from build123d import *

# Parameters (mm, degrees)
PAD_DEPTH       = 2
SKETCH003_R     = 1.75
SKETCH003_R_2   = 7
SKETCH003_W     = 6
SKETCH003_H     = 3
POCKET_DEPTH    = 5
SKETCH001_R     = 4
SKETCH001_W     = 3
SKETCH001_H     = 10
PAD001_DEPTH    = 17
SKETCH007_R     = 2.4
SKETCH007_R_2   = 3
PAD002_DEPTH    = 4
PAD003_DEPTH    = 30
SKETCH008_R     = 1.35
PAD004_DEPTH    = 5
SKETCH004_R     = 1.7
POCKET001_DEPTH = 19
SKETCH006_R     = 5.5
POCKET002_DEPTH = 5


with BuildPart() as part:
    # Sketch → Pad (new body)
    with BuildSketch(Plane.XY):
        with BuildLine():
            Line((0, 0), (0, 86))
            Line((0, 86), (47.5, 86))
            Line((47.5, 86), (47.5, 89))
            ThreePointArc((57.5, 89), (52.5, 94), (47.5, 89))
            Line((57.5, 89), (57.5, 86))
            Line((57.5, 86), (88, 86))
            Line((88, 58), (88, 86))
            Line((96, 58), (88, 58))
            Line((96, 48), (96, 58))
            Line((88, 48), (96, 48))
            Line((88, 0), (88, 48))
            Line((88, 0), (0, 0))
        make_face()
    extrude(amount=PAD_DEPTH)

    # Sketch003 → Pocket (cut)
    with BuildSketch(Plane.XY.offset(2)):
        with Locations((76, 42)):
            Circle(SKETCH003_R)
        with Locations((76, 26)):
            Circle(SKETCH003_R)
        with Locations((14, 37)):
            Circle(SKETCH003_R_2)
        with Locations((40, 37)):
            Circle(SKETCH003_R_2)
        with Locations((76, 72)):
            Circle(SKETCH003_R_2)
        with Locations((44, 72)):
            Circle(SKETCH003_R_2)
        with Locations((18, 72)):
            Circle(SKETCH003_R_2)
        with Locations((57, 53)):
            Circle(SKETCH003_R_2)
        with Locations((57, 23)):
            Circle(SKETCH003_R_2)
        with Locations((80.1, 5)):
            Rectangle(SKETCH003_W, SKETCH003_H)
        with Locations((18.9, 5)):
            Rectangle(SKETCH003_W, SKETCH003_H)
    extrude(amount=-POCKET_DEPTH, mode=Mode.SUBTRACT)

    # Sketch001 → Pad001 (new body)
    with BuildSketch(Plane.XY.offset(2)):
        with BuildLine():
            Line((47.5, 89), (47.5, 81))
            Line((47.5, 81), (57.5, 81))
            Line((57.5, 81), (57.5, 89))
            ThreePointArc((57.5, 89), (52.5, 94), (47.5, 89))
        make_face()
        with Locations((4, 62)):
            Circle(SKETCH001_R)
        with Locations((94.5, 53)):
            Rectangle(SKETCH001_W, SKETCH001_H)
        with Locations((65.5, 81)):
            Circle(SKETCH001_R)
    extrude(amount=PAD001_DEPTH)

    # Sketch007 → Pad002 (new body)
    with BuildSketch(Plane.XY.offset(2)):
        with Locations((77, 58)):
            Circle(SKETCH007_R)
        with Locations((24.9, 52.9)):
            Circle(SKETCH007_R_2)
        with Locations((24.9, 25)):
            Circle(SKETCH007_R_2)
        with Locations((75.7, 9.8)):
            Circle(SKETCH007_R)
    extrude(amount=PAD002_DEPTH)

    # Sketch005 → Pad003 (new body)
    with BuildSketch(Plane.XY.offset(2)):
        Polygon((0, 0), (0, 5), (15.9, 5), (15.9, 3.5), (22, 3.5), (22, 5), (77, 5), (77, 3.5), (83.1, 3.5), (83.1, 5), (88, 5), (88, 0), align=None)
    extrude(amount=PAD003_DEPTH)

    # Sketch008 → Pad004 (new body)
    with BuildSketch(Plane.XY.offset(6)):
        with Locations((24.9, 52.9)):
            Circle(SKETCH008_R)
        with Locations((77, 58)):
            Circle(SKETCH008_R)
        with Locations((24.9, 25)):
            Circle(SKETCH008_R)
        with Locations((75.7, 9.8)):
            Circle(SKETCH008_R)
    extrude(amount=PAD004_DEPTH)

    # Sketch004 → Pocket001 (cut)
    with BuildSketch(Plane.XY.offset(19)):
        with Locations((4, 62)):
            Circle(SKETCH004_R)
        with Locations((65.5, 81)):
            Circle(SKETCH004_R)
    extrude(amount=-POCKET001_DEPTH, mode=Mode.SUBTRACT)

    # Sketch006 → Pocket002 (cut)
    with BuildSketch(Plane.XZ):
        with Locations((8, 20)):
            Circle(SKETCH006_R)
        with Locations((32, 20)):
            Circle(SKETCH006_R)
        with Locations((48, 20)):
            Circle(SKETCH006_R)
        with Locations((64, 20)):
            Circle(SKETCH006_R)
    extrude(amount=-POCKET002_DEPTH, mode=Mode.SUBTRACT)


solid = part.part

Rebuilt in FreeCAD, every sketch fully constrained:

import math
import FreeCAD as App
import Part
import Sketcher
from FreeCAD import Vector

doc = App.newDocument("Part")
body = doc.addObject("PartDesign::Body", "Body")

# Sketch on XY plane
sketch1 = body.newObject("Sketcher::SketchObject", "Sketch")
sketch1.AttachmentSupport = (doc.getObject("XY_Plane"), [""])
sketch1.MapMode = "FlatFace"
sketch1.addGeometry([
    Part.LineSegment(Vector(0, 86, 0), Vector(0, 0, 0)),  # 0
    Part.LineSegment(Vector(0, 0, 0), Vector(88, 0, 0)),  # 1
    Part.LineSegment(Vector(88, 0, 0), Vector(88, 48, 0)),  # 2
    Part.LineSegment(Vector(88, 48, 0), Vector(96, 48, 0)),  # 3
    Part.LineSegment(Vector(96, 48, 0), Vector(96, 58, 0)),  # 4
    Part.LineSegment(Vector(96, 58, 0), Vector(88, 58, 0)),  # 5
    Part.LineSegment(Vector(88, 58, 0), Vector(88, 86, 0)),  # 6
    Part.LineSegment(Vector(88, 86, 0), Vector(57.5, 86, 0)),  # 7
    Part.LineSegment(Vector(57.5, 86, 0), Vector(57.5, 89, 0)),  # 8
    Part.ArcOfCircle(Part.Circle(Vector(52.5, 89, 0), Vector(0, 0, 1), 5), math.radians(0), math.radians(180)),  # 9
    Part.LineSegment(Vector(47.5, 89, 0), Vector(47.5, 86, 0)),  # 10
    Part.LineSegment(Vector(47.5, 86, 0), Vector(0, 86, 0)),  # 11
], False)
sketch1.addConstraint([
    Sketcher.Constraint("Coincident", 0, 2, 1, 1),
    Sketcher.Constraint("Coincident", 1, 2, 2, 1),
    Sketcher.Constraint("Coincident", 2, 2, 3, 1),
    Sketcher.Constraint("Coincident", 3, 2, 4, 1),
    Sketcher.Constraint("Coincident", 4, 2, 5, 1),
    Sketcher.Constraint("Coincident", 5, 2, 6, 1),
    Sketcher.Constraint("Coincident", 6, 2, 7, 1),
    Sketcher.Constraint("Coincident", 7, 2, 8, 1),
    Sketcher.Constraint("Tangent", 8, 2, 9, 1),
    Sketcher.Constraint("Tangent", 9, 2, 10, 1),
    Sketcher.Constraint("Coincident", 10, 2, 11, 1),
    Sketcher.Constraint("Coincident", 11, 2, 0, 1),
    Sketcher.Constraint("Vertical", 0),
    Sketcher.Constraint("Horizontal", 1),
    Sketcher.Constraint("Vertical", 2),
    Sketcher.Constraint("Horizontal", 3),
    Sketcher.Constraint("Vertical", 4),
    Sketcher.Constraint("Horizontal", 5),
    Sketcher.Constraint("Vertical", 6),
    Sketcher.Constraint("Horizontal", 7),
    Sketcher.Constraint("Vertical", 8),
    Sketcher.Constraint("Vertical", 10),
    Sketcher.Constraint("Horizontal", 11),
    Sketcher.Constraint("Coincident", 0, 2, -1, 1),
    Sketcher.Constraint("Horizontal", 7, 2, 10, 2),
    Sketcher.Constraint("Vertical", 2, 2, 5, 2),
    Sketcher.Constraint("Radius", 9, 5.0),
    Sketcher.Constraint("DistanceX", 1, 1, 1, 2, 88.0),
    Sketcher.Constraint("DistanceX", 3, 1, 3, 2, 8.0),
    Sketcher.Constraint("DistanceY", 0, 2, 0, 1, 86.0),
    Sketcher.Constraint("DistanceY", 2, 1, 2, 2, 48.0),
    Sketcher.Constraint("DistanceY", 4, 1, 4, 2, 10.0),
    Sketcher.Constraint("DistanceY", 8, 1, 8, 2, 3.0),
    Sketcher.Constraint("DistanceX", 7, 2, 7, 1, 30.5),
])
pad1 = body.newObject("PartDesign::Pad", "Pad")
pad1.Profile = sketch1
pad1.Length = 2

# Sketch on XY plane
sketch2 = body.newObject("Sketcher::SketchObject", "Sketch001")
sketch2.AttachmentSupport = (doc.getObject("XY_Plane"), [""])
sketch2.MapMode = "FlatFace"
sketch2.AttachmentOffset = App.Placement(Vector(0, 0, 2), App.Rotation())
sketch2.addGeometry([
    Part.Circle(Vector(76, 42, 0), Vector(0, 0, 1), 1.75),  # 0
    Part.Circle(Vector(76, 26, 0), Vector(0, 0, 1), 1.75),  # 1
    Part.Circle(Vector(14, 37, 0), Vector(0, 0, 1), 7),  # 2
    Part.Circle(Vector(40, 37, 0), Vector(0, 0, 1), 7),  # 3
    Part.Circle(Vector(76, 72, 0), Vector(0, 0, 1), 7),  # 4
    Part.Circle(Vector(44, 72, 0), Vector(0, 0, 1), 7),  # 5
    Part.Circle(Vector(18, 72, 0), Vector(0, 0, 1), 7),  # 6
    Part.Circle(Vector(57, 53, 0), Vector(0, 0, 1), 7),  # 7
    Part.Circle(Vector(57, 23, 0), Vector(0, 0, 1), 7),  # 8
    Part.LineSegment(Vector(77.1, 6.5, 0), Vector(77.1, 3.5, 0)),  # 9
    Part.LineSegment(Vector(77.1, 3.5, 0), Vector(83.1, 3.5, 0)),  # 10
    Part.LineSegment(Vector(83.1, 3.5, 0), Vector(83.1, 6.5, 0)),  # 11
    Part.LineSegment(Vector(83.1, 6.5, 0), Vector(77.1, 6.5, 0)),  # 12
    Part.LineSegment(Vector(15.9, 6.5, 0), Vector(15.9, 3.5, 0)),  # 13
    Part.LineSegment(Vector(15.9, 3.5, 0), Vector(21.9, 3.5, 0)),  # 14
    Part.LineSegment(Vector(21.9, 3.5, 0), Vector(21.9, 6.5, 0)),  # 15
    Part.LineSegment(Vector(21.9, 6.5, 0), Vector(15.9, 6.5, 0)),  # 16
], False)
sketch2.addConstraint([
    Sketcher.Constraint("Coincident", 9, 2, 10, 1),
    Sketcher.Constraint("Coincident", 10, 2, 11, 1),
    Sketcher.Constraint("Coincident", 11, 2, 12, 1),
    Sketcher.Constraint("Coincident", 12, 2, 9, 1),
    Sketcher.Constraint("Coincident", 13, 2, 14, 1),
    Sketcher.Constraint("Coincident", 14, 2, 15, 1),
    Sketcher.Constraint("Coincident", 15, 2, 16, 1),
    Sketcher.Constraint("Coincident", 16, 2, 13, 1),
    Sketcher.Constraint("Vertical", 9),
    Sketcher.Constraint("Horizontal", 10),
    Sketcher.Constraint("Vertical", 11),
    Sketcher.Constraint("Horizontal", 12),
    Sketcher.Constraint("Vertical", 13),
    Sketcher.Constraint("Horizontal", 14),
    Sketcher.Constraint("Vertical", 15),
    Sketcher.Constraint("Horizontal", 16),
    Sketcher.Constraint("Equal", 0, 1),
    Sketcher.Constraint("Equal", 2, 3),
    Sketcher.Constraint("Equal", 3, 4),
    Sketcher.Constraint("Equal", 4, 5),
    Sketcher.Constraint("Equal", 5, 6),
    Sketcher.Constraint("Equal", 6, 7),
    Sketcher.Constraint("Equal", 7, 8),
    Sketcher.Constraint("Horizontal", 2, 3, 3, 3),
    Sketcher.Constraint("Horizontal", 4, 3, 5, 3),
    Sketcher.Constraint("Horizontal", 5, 3, 6, 3),
    Sketcher.Constraint("Horizontal", 10, 2, 13, 2),
    Sketcher.Constraint("Horizontal", 12, 2, 15, 2),
    Sketcher.Constraint("Vertical", 0, 3, 1, 3),
    Sketcher.Constraint("Vertical", 1, 3, 4, 3),
    Sketcher.Constraint("Vertical", 7, 3, 8, 3),
    Sketcher.Constraint("Equal", 12, 14),
    Sketcher.Constraint("Diameter", 2, 14.0),
    Sketcher.Constraint("Diameter", 0, 3.5),
    Sketcher.Constraint("DistanceX", 10, 1, 10, 2, 6.0),
    Sketcher.Constraint("DistanceY", 9, 2, 9, 1, 3.0),
    Sketcher.Constraint("DistanceX", -1, 1, 0, 3, 76.0),
    Sketcher.Constraint("DistanceY", -1, 1, 0, 3, 42.0),
    Sketcher.Constraint("DistanceY", -1, 1, 1, 3, 26.0),
    Sketcher.Constraint("DistanceX", -1, 1, 2, 3, 14.0),
    Sketcher.Constraint("DistanceY", -1, 1, 2, 3, 37.0),
    Sketcher.Constraint("DistanceX", -1, 1, 3, 3, 40.0),
    Sketcher.Constraint("DistanceY", -1, 1, 4, 3, 72.0),
    Sketcher.Constraint("DistanceX", -1, 1, 5, 3, 44.0),
    Sketcher.Constraint("DistanceX", -1, 1, 6, 3, 18.0),
    Sketcher.Constraint("DistanceX", -1, 1, 7, 3, 57.0),
    Sketcher.Constraint("DistanceY", -1, 1, 7, 3, 53.0),
    Sketcher.Constraint("DistanceY", -1, 1, 8, 3, 23.0),
    Sketcher.Constraint("DistanceX", -1, 1, 9, 2, 77.1),
    Sketcher.Constraint("DistanceY", -1, 1, 9, 2, 3.5),
    Sketcher.Constraint("DistanceX", -1, 1, 13, 2, 15.9),
])
pocket1 = body.newObject("PartDesign::Pocket", "Pocket")
pocket1.Profile = sketch2
pocket1.Length = 5

# Sketch on XY plane
sketch3 = body.newObject("Sketcher::SketchObject", "Sketch002")
sketch3.AttachmentSupport = (doc.getObject("XY_Plane"), [""])
sketch3.MapMode = "FlatFace"
sketch3.AttachmentOffset = App.Placement(Vector(0, 0, 2), App.Rotation())
sketch3.addGeometry([
    Part.LineSegment(Vector(47.5, 89, 0), Vector(47.5, 81, 0)),  # 0
    Part.LineSegment(Vector(47.5, 81, 0), Vector(57.5, 81, 0)),  # 1
    Part.LineSegment(Vector(57.5, 81, 0), Vector(57.5, 89, 0)),  # 2
    Part.ArcOfCircle(Part.Circle(Vector(52.5, 89, 0), Vector(0, 0, 1), 5), math.radians(0), math.radians(180)),  # 3
    Part.Circle(Vector(4, 62, 0), Vector(0, 0, 1), 4),  # 4
    Part.LineSegment(Vector(93, 58, 0), Vector(93, 48, 0)),  # 5
    Part.LineSegment(Vector(93, 48, 0), Vector(96, 48, 0)),  # 6
    Part.LineSegment(Vector(96, 48, 0), Vector(96, 58, 0)),  # 7
    Part.LineSegment(Vector(96, 58, 0), Vector(93, 58, 0)),  # 8
    Part.Circle(Vector(65.5, 81, 0), Vector(0, 0, 1), 4),  # 9
], False)
sketch3.addConstraint([
    Sketcher.Constraint("Coincident", 0, 2, 1, 1),
    Sketcher.Constraint("Coincident", 1, 2, 2, 1),
    Sketcher.Constraint("Tangent", 2, 2, 3, 1),
    Sketcher.Constraint("Tangent", 3, 2, 0, 1),
    Sketcher.Constraint("Coincident", 5, 2, 6, 1),
    Sketcher.Constraint("Coincident", 6, 2, 7, 1),
    Sketcher.Constraint("Coincident", 7, 2, 8, 1),
    Sketcher.Constraint("Coincident", 8, 2, 5, 1),
    Sketcher.Constraint("Vertical", 0),
    Sketcher.Constraint("Horizontal", 1),
    Sketcher.Constraint("Vertical", 2),
    Sketcher.Constraint("Vertical", 5),
    Sketcher.Constraint("Horizontal", 6),
    Sketcher.Constraint("Vertical", 7),
    Sketcher.Constraint("Horizontal", 8),
    Sketcher.Constraint("Equal", 4, 9),
    Sketcher.Constraint("Horizontal", 9, 3, 0, 2),
    Sketcher.Constraint("Equal", 1, 5),
    Sketcher.Constraint("Diameter", 4, 8.0),
    Sketcher.Constraint("Radius", 3, 5.0),
    Sketcher.Constraint("DistanceX", 6, 1, 6, 2, 3.0),
    Sketcher.Constraint("DistanceY", 0, 2, 0, 1, 8.0),
    Sketcher.Constraint("DistanceY", -1, 1, 3, 3, 89.0),
    Sketcher.Constraint("DistanceX", -1, 1, 4, 3, 4.0),
    Sketcher.Constraint("DistanceY", -1, 1, 4, 3, 62.0),
    Sketcher.Constraint("DistanceX", -1, 1, 5, 2, 93.0),
    Sketcher.Constraint("DistanceY", -1, 1, 5, 2, 48.0),
    Sketcher.Constraint("DistanceX", 3, 3, 9, 3, 13.0),
    Sketcher.Constraint("DistanceX", -1, 1, 3, 3, 52.5),
])
pad2 = body.newObject("PartDesign::Pad", "Pad001")
pad2.Profile = sketch3
pad2.Length = 17

# Sketch on XY plane
sketch4 = body.newObject("Sketcher::SketchObject", "Sketch003")
sketch4.AttachmentSupport = (doc.getObject("XY_Plane"), [""])
sketch4.MapMode = "FlatFace"
sketch4.AttachmentOffset = App.Placement(Vector(0, 0, 2), App.Rotation())
sketch4.addGeometry([
    Part.Circle(Vector(77, 58, 0), Vector(0, 0, 1), 2.4),
    Part.Circle(Vector(24.9, 52.9, 0), Vector(0, 0, 1), 3),
    Part.Circle(Vector(24.9, 25, 0), Vector(0, 0, 1), 3),
    Part.Circle(Vector(75.7, 9.8, 0), Vector(0, 0, 1), 2.4),
], False)
sketch4.addConstraint([
    Sketcher.Constraint("Equal", 1, 2),
    Sketcher.Constraint("Equal", 0, 3),
    Sketcher.Constraint("Vertical", 1, 3, 2, 3),
    Sketcher.Constraint("Diameter", 1, 6.0),
    Sketcher.Constraint("Diameter", 0, 4.8),
    Sketcher.Constraint("DistanceX", -1, 1, 0, 3, 77.0),
    Sketcher.Constraint("DistanceY", -1, 1, 0, 3, 58.0),
    Sketcher.Constraint("DistanceY", -1, 1, 2, 3, 25.0),
    Sketcher.Constraint("DistanceX", -1, 1, 1, 3, 24.9),
    Sketcher.Constraint("DistanceY", -1, 1, 1, 3, 52.9),
    Sketcher.Constraint("DistanceX", -1, 1, 3, 3, 75.7),
    Sketcher.Constraint("DistanceY", -1, 1, 3, 3, 9.8),
])
pad3 = body.newObject("PartDesign::Pad", "Pad002")
pad3.Profile = sketch4
pad3.Length = 4

# Sketch on XY plane
sketch5 = body.newObject("Sketcher::SketchObject", "Sketch004")
sketch5.AttachmentSupport = (doc.getObject("XY_Plane"), [""])
sketch5.MapMode = "FlatFace"
sketch5.AttachmentOffset = App.Placement(Vector(0, 0, 2), App.Rotation())
sketch5.addGeometry([
    Part.LineSegment(Vector(0, 5, 0), Vector(0, 0, 0)),  # 0
    Part.LineSegment(Vector(0, 0, 0), Vector(88, 0, 0)),  # 1
    Part.LineSegment(Vector(88, 0, 0), Vector(88, 5, 0)),  # 2
    Part.LineSegment(Vector(88, 5, 0), Vector(83.1, 5, 0)),  # 3
    Part.LineSegment(Vector(83.1, 5, 0), Vector(83.1, 3.5, 0)),  # 4
    Part.LineSegment(Vector(83.1, 3.5, 0), Vector(77, 3.5, 0)),  # 5
    Part.LineSegment(Vector(77, 3.5, 0), Vector(77, 5, 0)),  # 6
    Part.LineSegment(Vector(77, 5, 0), Vector(22, 5, 0)),  # 7
    Part.LineSegment(Vector(22, 5, 0), Vector(22, 3.5, 0)),  # 8
    Part.LineSegment(Vector(22, 3.5, 0), Vector(15.9, 3.5, 0)),  # 9
    Part.LineSegment(Vector(15.9, 3.5, 0), Vector(15.9, 5, 0)),  # 10
    Part.LineSegment(Vector(15.9, 5, 0), Vector(0, 5, 0)),  # 11
], False)
sketch5.addConstraint([
    Sketcher.Constraint("Coincident", 0, 2, 1, 1),
    Sketcher.Constraint("Coincident", 1, 2, 2, 1),
    Sketcher.Constraint("Coincident", 2, 2, 3, 1),
    Sketcher.Constraint("Coincident", 3, 2, 4, 1),
    Sketcher.Constraint("Coincident", 4, 2, 5, 1),
    Sketcher.Constraint("Coincident", 5, 2, 6, 1),
    Sketcher.Constraint("Coincident", 6, 2, 7, 1),
    Sketcher.Constraint("Coincident", 7, 2, 8, 1),
    Sketcher.Constraint("Coincident", 8, 2, 9, 1),
    Sketcher.Constraint("Coincident", 9, 2, 10, 1),
    Sketcher.Constraint("Coincident", 10, 2, 11, 1),
    Sketcher.Constraint("Coincident", 11, 2, 0, 1),
    Sketcher.Constraint("Vertical", 0),
    Sketcher.Constraint("Horizontal", 1),
    Sketcher.Constraint("Vertical", 2),
    Sketcher.Constraint("Horizontal", 3),
    Sketcher.Constraint("Vertical", 4),
    Sketcher.Constraint("Horizontal", 5),
    Sketcher.Constraint("Vertical", 6),
    Sketcher.Constraint("Horizontal", 7),
    Sketcher.Constraint("Vertical", 8),
    Sketcher.Constraint("Horizontal", 9),
    Sketcher.Constraint("Vertical", 10),
    Sketcher.Constraint("Horizontal", 11),
    Sketcher.Constraint("Coincident", 0, 2, -1, 1),
    Sketcher.Constraint("Horizontal", 3, 2, 6, 2),
    Sketcher.Constraint("Horizontal", 5, 2, 8, 2),
    Sketcher.Constraint("Horizontal", 7, 2, 10, 2),
    Sketcher.Constraint("Equal", 5, 9),
    Sketcher.Constraint("DistanceX", 1, 1, 1, 2, 88.0),
    Sketcher.Constraint("DistanceX", 7, 2, 7, 1, 55.0),
    Sketcher.Constraint("DistanceY", 0, 2, 0, 1, 5.0),
    Sketcher.Constraint("DistanceX", 3, 2, 3, 1, 4.9),
    Sketcher.Constraint("DistanceX", 5, 2, 5, 1, 6.1),
    Sketcher.Constraint("DistanceY", 4, 2, 4, 1, 1.5),
])
pad4 = body.newObject("PartDesign::Pad", "Pad003")
pad4.Profile = sketch5
pad4.Length = 30

# Sketch on XY plane
sketch6 = body.newObject("Sketcher::SketchObject", "Sketch005")
sketch6.AttachmentSupport = (doc.getObject("XY_Plane"), [""])
sketch6.MapMode = "FlatFace"
sketch6.AttachmentOffset = App.Placement(Vector(0, 0, 6), App.Rotation())
sketch6.addGeometry([
    Part.Circle(Vector(24.9, 52.9, 0), Vector(0, 0, 1), 1.35),
    Part.Circle(Vector(77, 58, 0), Vector(0, 0, 1), 1.35),
    Part.Circle(Vector(24.9, 25, 0), Vector(0, 0, 1), 1.35),
    Part.Circle(Vector(75.7, 9.8, 0), Vector(0, 0, 1), 1.35),
], False)
sketch6.addConstraint([
    Sketcher.Constraint("Equal", 0, 1),
    Sketcher.Constraint("Equal", 1, 2),
    Sketcher.Constraint("Equal", 2, 3),
    Sketcher.Constraint("Vertical", 0, 3, 2, 3),
    Sketcher.Constraint("Diameter", 0, 2.7),
    Sketcher.Constraint("DistanceX", -1, 1, 1, 3, 77.0),
    Sketcher.Constraint("DistanceY", -1, 1, 1, 3, 58.0),
    Sketcher.Constraint("DistanceY", -1, 1, 2, 3, 25.0),
    Sketcher.Constraint("DistanceX", -1, 1, 0, 3, 24.9),
    Sketcher.Constraint("DistanceY", -1, 1, 0, 3, 52.9),
    Sketcher.Constraint("DistanceX", -1, 1, 3, 3, 75.7),
    Sketcher.Constraint("DistanceY", -1, 1, 3, 3, 9.8),
])
pad5 = body.newObject("PartDesign::Pad", "Pad004")
pad5.Profile = sketch6
pad5.Length = 5

# Sketch on XY plane
sketch7 = body.newObject("Sketcher::SketchObject", "Sketch006")
sketch7.AttachmentSupport = (doc.getObject("XY_Plane"), [""])
sketch7.MapMode = "FlatFace"
sketch7.AttachmentOffset = App.Placement(Vector(0, 0, 19), App.Rotation())
sketch7.addGeometry([
    Part.Circle(Vector(4, 62, 0), Vector(0, 0, 1), 1.7),
    Part.Circle(Vector(65.5, 81, 0), Vector(0, 0, 1), 1.7),
], False)
sketch7.addConstraint([
    Sketcher.Constraint("Equal", 0, 1),
    Sketcher.Constraint("Diameter", 0, 3.4),
    Sketcher.Constraint("DistanceX", -1, 1, 0, 3, 4.0),
    Sketcher.Constraint("DistanceY", -1, 1, 0, 3, 62.0),
    Sketcher.Constraint("DistanceY", -1, 1, 1, 3, 81.0),
    Sketcher.Constraint("DistanceX", -1, 1, 1, 3, 65.5),
])
pocket2 = body.newObject("PartDesign::Pocket", "Pocket001")
pocket2.Profile = sketch7
pocket2.Length = 19

# Sketch on XZ plane
sketch8 = body.newObject("Sketcher::SketchObject", "Sketch007")
sketch8.AttachmentSupport = (doc.getObject("XZ_Plane"), [""])
sketch8.MapMode = "FlatFace"
sketch8.addGeometry([
    Part.Circle(Vector(8, 20, 0), Vector(0, 0, 1), 5.5),
    Part.Circle(Vector(32, 20, 0), Vector(0, 0, 1), 5.5),
    Part.Circle(Vector(48, 20, 0), Vector(0, 0, 1), 5.5),
    Part.Circle(Vector(64, 20, 0), Vector(0, 0, 1), 5.5),
], False)
sketch8.addConstraint([
    Sketcher.Constraint("Equal", 0, 1),
    Sketcher.Constraint("Equal", 1, 2),
    Sketcher.Constraint("Equal", 2, 3),
    Sketcher.Constraint("Horizontal", 0, 3, 1, 3),
    Sketcher.Constraint("Horizontal", 1, 3, 2, 3),
    Sketcher.Constraint("Horizontal", 2, 3, 3, 3),
    Sketcher.Constraint("Diameter", 0, 11.0),
    Sketcher.Constraint("DistanceX", -1, 1, 0, 3, 8.0),
    Sketcher.Constraint("DistanceY", -1, 1, 0, 3, 20.0),
    Sketcher.Constraint("DistanceX", -1, 1, 1, 3, 32.0),
    Sketcher.Constraint("DistanceX", -1, 1, 2, 3, 48.0),
    Sketcher.Constraint("DistanceX", -1, 1, 3, 3, 64.0),
])
pocket3 = body.newObject("PartDesign::Pocket", "Pocket002")
pocket3.Profile = sketch8
pocket3.Length = 5

doc.recompute()
